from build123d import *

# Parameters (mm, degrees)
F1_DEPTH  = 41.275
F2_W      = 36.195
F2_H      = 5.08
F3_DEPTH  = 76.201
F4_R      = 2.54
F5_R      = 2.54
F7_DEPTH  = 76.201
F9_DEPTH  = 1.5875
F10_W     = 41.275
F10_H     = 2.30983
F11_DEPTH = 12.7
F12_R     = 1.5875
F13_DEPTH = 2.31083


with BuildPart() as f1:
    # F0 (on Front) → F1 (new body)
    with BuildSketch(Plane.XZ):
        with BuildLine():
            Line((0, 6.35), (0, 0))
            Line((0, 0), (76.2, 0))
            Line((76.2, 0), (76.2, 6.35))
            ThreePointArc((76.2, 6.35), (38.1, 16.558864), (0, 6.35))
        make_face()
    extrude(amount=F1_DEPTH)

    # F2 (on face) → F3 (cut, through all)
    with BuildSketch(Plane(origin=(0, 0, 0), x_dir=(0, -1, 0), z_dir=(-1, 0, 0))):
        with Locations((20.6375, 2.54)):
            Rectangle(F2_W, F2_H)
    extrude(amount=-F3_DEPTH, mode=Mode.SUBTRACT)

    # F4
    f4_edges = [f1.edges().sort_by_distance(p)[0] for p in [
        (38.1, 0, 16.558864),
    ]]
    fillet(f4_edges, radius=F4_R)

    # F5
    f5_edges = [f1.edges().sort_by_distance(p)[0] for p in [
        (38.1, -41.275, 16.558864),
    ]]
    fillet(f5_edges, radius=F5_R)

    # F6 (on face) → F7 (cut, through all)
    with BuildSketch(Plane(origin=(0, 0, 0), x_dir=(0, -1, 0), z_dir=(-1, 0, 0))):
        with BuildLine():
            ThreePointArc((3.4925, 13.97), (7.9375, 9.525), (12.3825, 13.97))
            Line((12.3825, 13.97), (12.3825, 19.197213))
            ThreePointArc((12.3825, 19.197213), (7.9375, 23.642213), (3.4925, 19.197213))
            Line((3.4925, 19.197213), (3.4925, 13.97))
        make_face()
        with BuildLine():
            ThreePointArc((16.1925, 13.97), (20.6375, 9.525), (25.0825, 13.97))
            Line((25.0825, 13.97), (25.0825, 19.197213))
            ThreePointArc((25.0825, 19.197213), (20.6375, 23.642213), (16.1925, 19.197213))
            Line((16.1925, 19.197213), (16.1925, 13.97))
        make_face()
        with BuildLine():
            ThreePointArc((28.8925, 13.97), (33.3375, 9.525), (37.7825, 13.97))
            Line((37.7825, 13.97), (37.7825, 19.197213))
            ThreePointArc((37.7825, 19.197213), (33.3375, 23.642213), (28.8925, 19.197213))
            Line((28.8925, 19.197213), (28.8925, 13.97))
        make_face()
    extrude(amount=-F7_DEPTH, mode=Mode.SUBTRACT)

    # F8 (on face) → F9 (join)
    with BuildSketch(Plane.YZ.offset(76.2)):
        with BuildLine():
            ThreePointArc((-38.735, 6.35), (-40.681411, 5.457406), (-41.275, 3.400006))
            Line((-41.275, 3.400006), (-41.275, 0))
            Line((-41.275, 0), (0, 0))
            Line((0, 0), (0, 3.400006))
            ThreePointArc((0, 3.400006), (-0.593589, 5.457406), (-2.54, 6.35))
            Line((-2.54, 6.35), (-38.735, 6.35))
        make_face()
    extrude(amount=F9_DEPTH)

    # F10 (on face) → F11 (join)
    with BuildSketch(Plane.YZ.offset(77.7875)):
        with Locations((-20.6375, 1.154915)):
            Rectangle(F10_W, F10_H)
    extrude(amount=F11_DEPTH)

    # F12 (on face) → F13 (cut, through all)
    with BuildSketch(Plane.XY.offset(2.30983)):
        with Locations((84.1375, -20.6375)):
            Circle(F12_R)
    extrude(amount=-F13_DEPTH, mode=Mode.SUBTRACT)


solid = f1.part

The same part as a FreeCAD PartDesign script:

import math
import FreeCAD as App
import Part
import Sketcher
from FreeCAD import Vector
Q = App.Units.Quantity


def edges_at(feature, points):
    """Names of the edges that pass closest to the given points."""
    edges = feature.Shape.Edges
    near = lambda p: min(range(len(edges)), key=lambda i: edges[i].distToShape(Part.Vertex(*p))[0])
    return sorted({f"Edge{near(p) + 1}" for p in points})


def add_polygon(sketch, points):
    """Adds a closed chain of lines whose ends are joined by coincident constraints."""
    first, n = sketch.GeometryCount, len(points)
    for a, b in zip(points, points[1:] + points[:1]):
        sketch.addGeometry(Part.LineSegment(App.Vector(*a, 0), App.Vector(*b, 0)), False)
    for i in range(n):
        sketch.addConstraint(Sketcher.Constraint("Coincident", first + i, 2, first + (i + 1) % n, 1))

doc = App.newDocument("Part")
body = doc.addObject("PartDesign::Body", "Body")

# Sketch on XZ plane
sketch1 = body.newObject("Sketcher::SketchObject", "Sketch")
sketch1.AttachmentSupport = (doc.getObject("XZ_Plane"), [""])
sketch1.MapMode = "FlatFace"
sketch1.addGeometry([
    Part.LineSegment(Vector(0, 6.35, 0), Vector(0, 0, 0)),
    Part.LineSegment(Vector(0, 0, 0), Vector(76.2, 0, 0)),
    Part.LineSegment(Vector(76.2, 0, 0), Vector(76.2, 6.35, 0)),
    Part.ArcOfCircle(Part.Circle(Vector(38.1, -59.641137, 0), Vector(0, 0, 1), 76.200001), math.radians(60.000001), math.radians(119.999999)),
], False)
sketch1.addConstraint([
    Sketcher.Constraint("Coincident", 0, 2, 1, 1),
    Sketcher.Constraint("Coincident", 1, 2, 2, 1),
    Sketcher.Constraint("Coincident", 2, 2, 3, 1),
    Sketcher.Constraint("Coincident", 3, 2, 0, 1),
    Sketcher.Constraint("Vertical", 0),
    Sketcher.Constraint("Horizontal", 1),
    Sketcher.Constraint("Vertical", 2),
    Sketcher.Constraint("Coincident", 0, 2, -1, 1),
    Sketcher.Constraint("Horizontal", 2, 2, 3, 2),
    Sketcher.Constraint("Radius", 3, Q("3.0000001 in")),
    Sketcher.Constraint("DistanceX", 1, 1, 1, 2, Q("3 in")),
    Sketcher.Constraint("DistanceY", 0, 2, 0, 1, Q("0.25 in")),
])
pad1 = body.newObject("PartDesign::Pad", "Pad")
pad1.Profile = sketch1
pad1.Length = Q("1.625 in")

# Sketch on YZ plane
sketch2 = body.newObject("Sketcher::SketchObject", "Sketch001")
sketch2.AttachmentSupport = (doc.getObject("YZ_Plane"), [""])
sketch2.MapMode = "FlatFace"
add_polygon(sketch2, [(-2.54, 5.08), (-2.54, 0), (-38.735, 0), (-38.735, 5.08)])  # lines 0-3
sketch2.addConstraint([
    Sketcher.Constraint("Vertical", 0),
    Sketcher.Constraint("Horizontal", 1),
    Sketcher.Constraint("Vertical", 2),
    Sketcher.Constraint("Horizontal", 3),
    Sketcher.Constraint("PointOnObject", 0, 2, -1),
    Sketcher.Constraint("DistanceY", 0, 2, 0, 1, Q("0.2 in")),
    Sketcher.Constraint("DistanceX", 0, 2, -1, 1, Q("0.1 in")),
    Sketcher.Constraint("DistanceX", 1, 2, 1, 1, Q("1.425 in")),
])
pocket1 = body.newObject("PartDesign::Pocket", "Pocket")
pocket1.Profile = sketch2
pocket1.Type = "ThroughAll"
pocket1.Reversed = True
doc.recompute()

fillet = body.newObject("PartDesign::Fillet", "Fillet")
fillet.Base = (pocket1, edges_at(pocket1, [(38.1, 0, 16.559)]))
fillet.Radius = Q("0.1 in")
doc.recompute()

fillet2 = body.newObject("PartDesign::Fillet", "Fillet001")
fillet2.Base = (fillet, edges_at(fillet, [(38.1, -41.275, 16.559)]))
fillet2.Radius = Q("0.1 in")

# Sketch on YZ plane
sketch3 = body.newObject("Sketcher::SketchObject", "Sketch002")
sketch3.AttachmentSupport = (doc.getObject("YZ_Plane"), [""])
sketch3.MapMode = "FlatFace"
sketch3.addGeometry([
    Part.ArcOfCircle(Part.Circle(Vector(-7.9375, 13.97, 0), Vector(0, 0, 1), 4.445), math.radians(180), math.radians(360)),  # 0
    Part.LineSegment(Vector(-12.3825, 13.97, 0), Vector(-12.3825, 19.197213, 0)),  # 1
    Part.ArcOfCircle(Part.Circle(Vector(-7.9375, 19.197213, 0), Vector(0, 0, 1), 4.445), math.radians(0), math.radians(180)),  # 2
    Part.LineSegment(Vector(-3.4925, 19.197213, 0), Vector(-3.4925, 13.97, 0)),  # 3
    Part.ArcOfCircle(Part.Circle(Vector(-20.6375, 13.97, 0), Vector(0, 0, 1), 4.445), math.radians(180), math.radians(360)),  # 4
    Part.LineSegment(Vector(-25.0825, 13.97, 0), Vector(-25.0825, 19.197213, 0)),  # 5
    Part.ArcOfCircle(Part.Circle(Vector(-20.6375, 19.197213, 0), Vector(0, 0, 1), 4.445), math.radians(0), math.radians(180)),  # 6
    Part.LineSegment(Vector(-16.1925, 19.197213, 0), Vector(-16.1925, 13.97, 0)),  # 7
    Part.ArcOfCircle(Part.Circle(Vector(-33.3375, 13.97, 0), Vector(0, 0, 1), 4.445), math.radians(180), math.radians(360)),  # 8
    Part.LineSegment(Vector(-37.7825, 13.97, 0), Vector(-37.7825, 19.197213, 0)),  # 9
    Part.ArcOfCircle(Part.Circle(Vector(-33.3375, 19.197213, 0), Vector(0, 0, 1), 4.445), math.radians(0), math.radians(180)),  # 10
    Part.LineSegment(Vector(-28.8925, 19.197213, 0), Vector(-28.8925, 13.97, 0)),  # 11
], False)
sketch3.addConstraint([
    Sketcher.Constraint("Tangent", 0, 1, 1, 1),
    Sketcher.Constraint("Tangent", 1, 2, 2, 2),
    Sketcher.Constraint("Tangent", 2, 1, 3, 1),
    Sketcher.Constraint("Tangent", 3, 2, 0, 2),
    Sketcher.Constraint("Tangent", 4, 1, 5, 1),
    Sketcher.Constraint("Tangent", 5, 2, 6, 2),
    Sketcher.Constraint("Tangent", 6, 1, 7, 1),
    Sketcher.Constraint("Tangent", 7, 2, 4, 2),
    Sketcher.Constraint("Tangent", 8, 1, 9, 1),
    Sketcher.Constraint("Tangent", 9, 2, 10, 2),
    Sketcher.Constraint("Tangent", 10, 1, 11, 1),
    Sketcher.Constraint("Tangent", 11, 2, 8, 2),
    Sketcher.Constraint("Vertical", 1),
    Sketcher.Constraint("Vertical", 3),
    Sketcher.Constraint("Vertical", 5),
    Sketcher.Constraint("Vertical", 7),
    Sketcher.Constraint("Vertical", 9),
    Sketcher.Constraint("Vertical", 11),
    Sketcher.Constraint("Equal", 2, 4),
    Sketcher.Constraint("Equal", 6, 8),
    Sketcher.Constraint("Horizontal", 0, 3, 4, 3),
    Sketcher.Constraint("Horizontal", 2, 3, 6, 3),
    Sketcher.Constraint("Horizontal", 4, 3, 8, 3),
    Sketcher.Constraint("Horizontal", 6, 3, 10, 3),
    Sketcher.Constraint("Radius", 0, Q("0.175 in")),
    Sketcher.Constraint("DistanceX", 8, 3, 0, 3, Q("1 in")),
    Sketcher.Constraint("DistanceX", 4, 3, 0, 3, Q("0.5 in")),
    Sketcher.Constraint("DistanceY", -1, 1, 0, 3, Q("0.55 in")),
    Sketcher.Constraint("DistanceX", 0, 3, -1, 1, Q("0.3125 in")),
    Sketcher.Constraint("DistanceY", 1, 1, 1, 2, 5.227213),
])
pocket2 = body.newObject("PartDesign::Pocket", "Pocket001")
pocket2.Profile = sketch3
pocket2.Type = "ThroughAll"
pocket2.Reversed = True

# Sketch on YZ plane
sketch4 = body.newObject("Sketcher::SketchObject", "Sketch003")
sketch4.AttachmentSupport = (doc.getObject("YZ_Plane"), [""])
sketch4.MapMode = "FlatFace"
sketch4.AttachmentOffset = App.Placement(Vector(0, 0, 3 * 25.4), App.Rotation())
sketch4.addGeometry([
    Part.ArcOfCircle(Part.Circle(Vector(-38.735, 3.78151, 0), Vector(0, 0, 1), 2.56849), math.radians(89.999991), math.radians(188.541877)),  # 0
    Part.LineSegment(Vector(-41.275, 3.400006, 0), Vector(-41.275, 0, 0)),  # 1
    Part.LineSegment(Vector(-41.275, 0, 0), Vector(0, 0, 0)),  # 2
    Part.LineSegment(Vector(0, 0, 0), Vector(0, 3.400006, 0)),  # 3
    Part.ArcOfCircle(Part.Circle(Vector(-2.54, 3.78151, 0), Vector(0, 0, 1), 2.56849), math.radians(-8.541877), math.radians(90.000009)),  # 4
    Part.LineSegment(Vector(-2.54, 6.35, 0), Vector(-38.735, 6.35, 0)),  # 5
], False)
sketch4.addConstraint([
    Sketcher.Constraint("Coincident", 0, 2, 1, 1),
    Sketcher.Constraint("Coincident", 1, 2, 2, 1),
    Sketcher.Constraint("Coincident", 2, 2, 3, 1),
    Sketcher.Constraint("Coincident", 3, 2, 4, 1),
    Sketcher.Constraint("Tangent", 4, 2, 5, 1),
    Sketcher.Constraint("Tangent", 5, 2, 0, 1),
    Sketcher.Constraint("Vertical", 1),
    Sketcher.Constraint("Horizontal", 2),
    Sketcher.Constraint("Vertical", 3),
    Sketcher.Constraint("Horizontal", 5),
    Sketcher.Constraint("Coincident", 2, 2, -1, 1),
    Sketcher.Constraint("Equal", 0, 4),
    Sketcher.Constraint("Horizontal", 0, 2, 3, 2),
    Sketcher.Constraint("DistanceX", 4, 3, -1, 1, Q("0.1 in")),
    Sketcher.Constraint("DistanceX", 2, 1, 2, 2, Q("1.625 in")),
    Sketcher.Constraint("DistanceY", -1, 1, 4, 2, Q("0.25 in")),
    Sketcher.Constraint("Radius", 0, 2.56849),
])
pad2 = body.newObject("PartDesign::Pad", "Pad001")
pad2.Profile = sketch4
pad2.Length = Q("0.0625 in")

# Sketch on YZ plane
sketch5 = body.newObject("Sketcher::SketchObject", "Sketch004")
sketch5.AttachmentSupport = (doc.getObject("YZ_Plane"), [""])
sketch5.MapMode = "FlatFace"
sketch5.AttachmentOffset = App.Placement(Vector(0, 0, 3.0625 * 25.4), App.Rotation())
add_polygon(sketch5, [(-41.275, 2.30983), (-41.275, 0), (0, 0), (0, 2.30983)])  # lines 0-3
sketch5.addConstraint([
    Sketcher.Constraint("Vertical", 0),
    Sketcher.Constraint("Horizontal", 1),
    Sketcher.Constraint("Vertical", 2),
    Sketcher.Constraint("Horizontal", 3),
    Sketcher.Constraint("Coincident", 1, 2, -1, 1),
    Sketcher.Constraint("DistanceX", 1, 1, 1, 2, Q("1.625 in")),
    Sketcher.Constraint("DistanceY", 0, 2, 0, 1, 2.30983),
])
pad3 = body.newObject("PartDesign::Pad", "Pad002")
pad3.Profile = sketch5
pad3.Length = Q("0.5 in")

# Sketch on XY plane
sketch6 = body.newObject("Sketcher::SketchObject", "Sketch005")
sketch6.AttachmentSupport = (doc.getObject("XY_Plane"), [""])
sketch6.MapMode = "FlatFace"
sketch6.AttachmentOffset = App.Placement(Vector(0, 0, 2.30983), App.Rotation())
sketch6.addGeometry(Part.Circle(Vector(84.1375, -20.6375, 0), Vector(0, 0, 1), 1.5875), False)
sketch6.addConstraint([
    Sketcher.Constraint("Diameter", 0, Q("0.125 in")),
    Sketcher.Constraint("DistanceX", -1, 1, 0, 3, Q("3.3125 in")),
    Sketcher.Constraint("DistanceY", 0, 3, -1, 1, Q("0.8125 in")),
])
pocket3 = body.newObject("PartDesign::Pocket", "Pocket002")
pocket3.Profile = sketch6
pocket3.Type = "ThroughAll"

doc.recompute()
